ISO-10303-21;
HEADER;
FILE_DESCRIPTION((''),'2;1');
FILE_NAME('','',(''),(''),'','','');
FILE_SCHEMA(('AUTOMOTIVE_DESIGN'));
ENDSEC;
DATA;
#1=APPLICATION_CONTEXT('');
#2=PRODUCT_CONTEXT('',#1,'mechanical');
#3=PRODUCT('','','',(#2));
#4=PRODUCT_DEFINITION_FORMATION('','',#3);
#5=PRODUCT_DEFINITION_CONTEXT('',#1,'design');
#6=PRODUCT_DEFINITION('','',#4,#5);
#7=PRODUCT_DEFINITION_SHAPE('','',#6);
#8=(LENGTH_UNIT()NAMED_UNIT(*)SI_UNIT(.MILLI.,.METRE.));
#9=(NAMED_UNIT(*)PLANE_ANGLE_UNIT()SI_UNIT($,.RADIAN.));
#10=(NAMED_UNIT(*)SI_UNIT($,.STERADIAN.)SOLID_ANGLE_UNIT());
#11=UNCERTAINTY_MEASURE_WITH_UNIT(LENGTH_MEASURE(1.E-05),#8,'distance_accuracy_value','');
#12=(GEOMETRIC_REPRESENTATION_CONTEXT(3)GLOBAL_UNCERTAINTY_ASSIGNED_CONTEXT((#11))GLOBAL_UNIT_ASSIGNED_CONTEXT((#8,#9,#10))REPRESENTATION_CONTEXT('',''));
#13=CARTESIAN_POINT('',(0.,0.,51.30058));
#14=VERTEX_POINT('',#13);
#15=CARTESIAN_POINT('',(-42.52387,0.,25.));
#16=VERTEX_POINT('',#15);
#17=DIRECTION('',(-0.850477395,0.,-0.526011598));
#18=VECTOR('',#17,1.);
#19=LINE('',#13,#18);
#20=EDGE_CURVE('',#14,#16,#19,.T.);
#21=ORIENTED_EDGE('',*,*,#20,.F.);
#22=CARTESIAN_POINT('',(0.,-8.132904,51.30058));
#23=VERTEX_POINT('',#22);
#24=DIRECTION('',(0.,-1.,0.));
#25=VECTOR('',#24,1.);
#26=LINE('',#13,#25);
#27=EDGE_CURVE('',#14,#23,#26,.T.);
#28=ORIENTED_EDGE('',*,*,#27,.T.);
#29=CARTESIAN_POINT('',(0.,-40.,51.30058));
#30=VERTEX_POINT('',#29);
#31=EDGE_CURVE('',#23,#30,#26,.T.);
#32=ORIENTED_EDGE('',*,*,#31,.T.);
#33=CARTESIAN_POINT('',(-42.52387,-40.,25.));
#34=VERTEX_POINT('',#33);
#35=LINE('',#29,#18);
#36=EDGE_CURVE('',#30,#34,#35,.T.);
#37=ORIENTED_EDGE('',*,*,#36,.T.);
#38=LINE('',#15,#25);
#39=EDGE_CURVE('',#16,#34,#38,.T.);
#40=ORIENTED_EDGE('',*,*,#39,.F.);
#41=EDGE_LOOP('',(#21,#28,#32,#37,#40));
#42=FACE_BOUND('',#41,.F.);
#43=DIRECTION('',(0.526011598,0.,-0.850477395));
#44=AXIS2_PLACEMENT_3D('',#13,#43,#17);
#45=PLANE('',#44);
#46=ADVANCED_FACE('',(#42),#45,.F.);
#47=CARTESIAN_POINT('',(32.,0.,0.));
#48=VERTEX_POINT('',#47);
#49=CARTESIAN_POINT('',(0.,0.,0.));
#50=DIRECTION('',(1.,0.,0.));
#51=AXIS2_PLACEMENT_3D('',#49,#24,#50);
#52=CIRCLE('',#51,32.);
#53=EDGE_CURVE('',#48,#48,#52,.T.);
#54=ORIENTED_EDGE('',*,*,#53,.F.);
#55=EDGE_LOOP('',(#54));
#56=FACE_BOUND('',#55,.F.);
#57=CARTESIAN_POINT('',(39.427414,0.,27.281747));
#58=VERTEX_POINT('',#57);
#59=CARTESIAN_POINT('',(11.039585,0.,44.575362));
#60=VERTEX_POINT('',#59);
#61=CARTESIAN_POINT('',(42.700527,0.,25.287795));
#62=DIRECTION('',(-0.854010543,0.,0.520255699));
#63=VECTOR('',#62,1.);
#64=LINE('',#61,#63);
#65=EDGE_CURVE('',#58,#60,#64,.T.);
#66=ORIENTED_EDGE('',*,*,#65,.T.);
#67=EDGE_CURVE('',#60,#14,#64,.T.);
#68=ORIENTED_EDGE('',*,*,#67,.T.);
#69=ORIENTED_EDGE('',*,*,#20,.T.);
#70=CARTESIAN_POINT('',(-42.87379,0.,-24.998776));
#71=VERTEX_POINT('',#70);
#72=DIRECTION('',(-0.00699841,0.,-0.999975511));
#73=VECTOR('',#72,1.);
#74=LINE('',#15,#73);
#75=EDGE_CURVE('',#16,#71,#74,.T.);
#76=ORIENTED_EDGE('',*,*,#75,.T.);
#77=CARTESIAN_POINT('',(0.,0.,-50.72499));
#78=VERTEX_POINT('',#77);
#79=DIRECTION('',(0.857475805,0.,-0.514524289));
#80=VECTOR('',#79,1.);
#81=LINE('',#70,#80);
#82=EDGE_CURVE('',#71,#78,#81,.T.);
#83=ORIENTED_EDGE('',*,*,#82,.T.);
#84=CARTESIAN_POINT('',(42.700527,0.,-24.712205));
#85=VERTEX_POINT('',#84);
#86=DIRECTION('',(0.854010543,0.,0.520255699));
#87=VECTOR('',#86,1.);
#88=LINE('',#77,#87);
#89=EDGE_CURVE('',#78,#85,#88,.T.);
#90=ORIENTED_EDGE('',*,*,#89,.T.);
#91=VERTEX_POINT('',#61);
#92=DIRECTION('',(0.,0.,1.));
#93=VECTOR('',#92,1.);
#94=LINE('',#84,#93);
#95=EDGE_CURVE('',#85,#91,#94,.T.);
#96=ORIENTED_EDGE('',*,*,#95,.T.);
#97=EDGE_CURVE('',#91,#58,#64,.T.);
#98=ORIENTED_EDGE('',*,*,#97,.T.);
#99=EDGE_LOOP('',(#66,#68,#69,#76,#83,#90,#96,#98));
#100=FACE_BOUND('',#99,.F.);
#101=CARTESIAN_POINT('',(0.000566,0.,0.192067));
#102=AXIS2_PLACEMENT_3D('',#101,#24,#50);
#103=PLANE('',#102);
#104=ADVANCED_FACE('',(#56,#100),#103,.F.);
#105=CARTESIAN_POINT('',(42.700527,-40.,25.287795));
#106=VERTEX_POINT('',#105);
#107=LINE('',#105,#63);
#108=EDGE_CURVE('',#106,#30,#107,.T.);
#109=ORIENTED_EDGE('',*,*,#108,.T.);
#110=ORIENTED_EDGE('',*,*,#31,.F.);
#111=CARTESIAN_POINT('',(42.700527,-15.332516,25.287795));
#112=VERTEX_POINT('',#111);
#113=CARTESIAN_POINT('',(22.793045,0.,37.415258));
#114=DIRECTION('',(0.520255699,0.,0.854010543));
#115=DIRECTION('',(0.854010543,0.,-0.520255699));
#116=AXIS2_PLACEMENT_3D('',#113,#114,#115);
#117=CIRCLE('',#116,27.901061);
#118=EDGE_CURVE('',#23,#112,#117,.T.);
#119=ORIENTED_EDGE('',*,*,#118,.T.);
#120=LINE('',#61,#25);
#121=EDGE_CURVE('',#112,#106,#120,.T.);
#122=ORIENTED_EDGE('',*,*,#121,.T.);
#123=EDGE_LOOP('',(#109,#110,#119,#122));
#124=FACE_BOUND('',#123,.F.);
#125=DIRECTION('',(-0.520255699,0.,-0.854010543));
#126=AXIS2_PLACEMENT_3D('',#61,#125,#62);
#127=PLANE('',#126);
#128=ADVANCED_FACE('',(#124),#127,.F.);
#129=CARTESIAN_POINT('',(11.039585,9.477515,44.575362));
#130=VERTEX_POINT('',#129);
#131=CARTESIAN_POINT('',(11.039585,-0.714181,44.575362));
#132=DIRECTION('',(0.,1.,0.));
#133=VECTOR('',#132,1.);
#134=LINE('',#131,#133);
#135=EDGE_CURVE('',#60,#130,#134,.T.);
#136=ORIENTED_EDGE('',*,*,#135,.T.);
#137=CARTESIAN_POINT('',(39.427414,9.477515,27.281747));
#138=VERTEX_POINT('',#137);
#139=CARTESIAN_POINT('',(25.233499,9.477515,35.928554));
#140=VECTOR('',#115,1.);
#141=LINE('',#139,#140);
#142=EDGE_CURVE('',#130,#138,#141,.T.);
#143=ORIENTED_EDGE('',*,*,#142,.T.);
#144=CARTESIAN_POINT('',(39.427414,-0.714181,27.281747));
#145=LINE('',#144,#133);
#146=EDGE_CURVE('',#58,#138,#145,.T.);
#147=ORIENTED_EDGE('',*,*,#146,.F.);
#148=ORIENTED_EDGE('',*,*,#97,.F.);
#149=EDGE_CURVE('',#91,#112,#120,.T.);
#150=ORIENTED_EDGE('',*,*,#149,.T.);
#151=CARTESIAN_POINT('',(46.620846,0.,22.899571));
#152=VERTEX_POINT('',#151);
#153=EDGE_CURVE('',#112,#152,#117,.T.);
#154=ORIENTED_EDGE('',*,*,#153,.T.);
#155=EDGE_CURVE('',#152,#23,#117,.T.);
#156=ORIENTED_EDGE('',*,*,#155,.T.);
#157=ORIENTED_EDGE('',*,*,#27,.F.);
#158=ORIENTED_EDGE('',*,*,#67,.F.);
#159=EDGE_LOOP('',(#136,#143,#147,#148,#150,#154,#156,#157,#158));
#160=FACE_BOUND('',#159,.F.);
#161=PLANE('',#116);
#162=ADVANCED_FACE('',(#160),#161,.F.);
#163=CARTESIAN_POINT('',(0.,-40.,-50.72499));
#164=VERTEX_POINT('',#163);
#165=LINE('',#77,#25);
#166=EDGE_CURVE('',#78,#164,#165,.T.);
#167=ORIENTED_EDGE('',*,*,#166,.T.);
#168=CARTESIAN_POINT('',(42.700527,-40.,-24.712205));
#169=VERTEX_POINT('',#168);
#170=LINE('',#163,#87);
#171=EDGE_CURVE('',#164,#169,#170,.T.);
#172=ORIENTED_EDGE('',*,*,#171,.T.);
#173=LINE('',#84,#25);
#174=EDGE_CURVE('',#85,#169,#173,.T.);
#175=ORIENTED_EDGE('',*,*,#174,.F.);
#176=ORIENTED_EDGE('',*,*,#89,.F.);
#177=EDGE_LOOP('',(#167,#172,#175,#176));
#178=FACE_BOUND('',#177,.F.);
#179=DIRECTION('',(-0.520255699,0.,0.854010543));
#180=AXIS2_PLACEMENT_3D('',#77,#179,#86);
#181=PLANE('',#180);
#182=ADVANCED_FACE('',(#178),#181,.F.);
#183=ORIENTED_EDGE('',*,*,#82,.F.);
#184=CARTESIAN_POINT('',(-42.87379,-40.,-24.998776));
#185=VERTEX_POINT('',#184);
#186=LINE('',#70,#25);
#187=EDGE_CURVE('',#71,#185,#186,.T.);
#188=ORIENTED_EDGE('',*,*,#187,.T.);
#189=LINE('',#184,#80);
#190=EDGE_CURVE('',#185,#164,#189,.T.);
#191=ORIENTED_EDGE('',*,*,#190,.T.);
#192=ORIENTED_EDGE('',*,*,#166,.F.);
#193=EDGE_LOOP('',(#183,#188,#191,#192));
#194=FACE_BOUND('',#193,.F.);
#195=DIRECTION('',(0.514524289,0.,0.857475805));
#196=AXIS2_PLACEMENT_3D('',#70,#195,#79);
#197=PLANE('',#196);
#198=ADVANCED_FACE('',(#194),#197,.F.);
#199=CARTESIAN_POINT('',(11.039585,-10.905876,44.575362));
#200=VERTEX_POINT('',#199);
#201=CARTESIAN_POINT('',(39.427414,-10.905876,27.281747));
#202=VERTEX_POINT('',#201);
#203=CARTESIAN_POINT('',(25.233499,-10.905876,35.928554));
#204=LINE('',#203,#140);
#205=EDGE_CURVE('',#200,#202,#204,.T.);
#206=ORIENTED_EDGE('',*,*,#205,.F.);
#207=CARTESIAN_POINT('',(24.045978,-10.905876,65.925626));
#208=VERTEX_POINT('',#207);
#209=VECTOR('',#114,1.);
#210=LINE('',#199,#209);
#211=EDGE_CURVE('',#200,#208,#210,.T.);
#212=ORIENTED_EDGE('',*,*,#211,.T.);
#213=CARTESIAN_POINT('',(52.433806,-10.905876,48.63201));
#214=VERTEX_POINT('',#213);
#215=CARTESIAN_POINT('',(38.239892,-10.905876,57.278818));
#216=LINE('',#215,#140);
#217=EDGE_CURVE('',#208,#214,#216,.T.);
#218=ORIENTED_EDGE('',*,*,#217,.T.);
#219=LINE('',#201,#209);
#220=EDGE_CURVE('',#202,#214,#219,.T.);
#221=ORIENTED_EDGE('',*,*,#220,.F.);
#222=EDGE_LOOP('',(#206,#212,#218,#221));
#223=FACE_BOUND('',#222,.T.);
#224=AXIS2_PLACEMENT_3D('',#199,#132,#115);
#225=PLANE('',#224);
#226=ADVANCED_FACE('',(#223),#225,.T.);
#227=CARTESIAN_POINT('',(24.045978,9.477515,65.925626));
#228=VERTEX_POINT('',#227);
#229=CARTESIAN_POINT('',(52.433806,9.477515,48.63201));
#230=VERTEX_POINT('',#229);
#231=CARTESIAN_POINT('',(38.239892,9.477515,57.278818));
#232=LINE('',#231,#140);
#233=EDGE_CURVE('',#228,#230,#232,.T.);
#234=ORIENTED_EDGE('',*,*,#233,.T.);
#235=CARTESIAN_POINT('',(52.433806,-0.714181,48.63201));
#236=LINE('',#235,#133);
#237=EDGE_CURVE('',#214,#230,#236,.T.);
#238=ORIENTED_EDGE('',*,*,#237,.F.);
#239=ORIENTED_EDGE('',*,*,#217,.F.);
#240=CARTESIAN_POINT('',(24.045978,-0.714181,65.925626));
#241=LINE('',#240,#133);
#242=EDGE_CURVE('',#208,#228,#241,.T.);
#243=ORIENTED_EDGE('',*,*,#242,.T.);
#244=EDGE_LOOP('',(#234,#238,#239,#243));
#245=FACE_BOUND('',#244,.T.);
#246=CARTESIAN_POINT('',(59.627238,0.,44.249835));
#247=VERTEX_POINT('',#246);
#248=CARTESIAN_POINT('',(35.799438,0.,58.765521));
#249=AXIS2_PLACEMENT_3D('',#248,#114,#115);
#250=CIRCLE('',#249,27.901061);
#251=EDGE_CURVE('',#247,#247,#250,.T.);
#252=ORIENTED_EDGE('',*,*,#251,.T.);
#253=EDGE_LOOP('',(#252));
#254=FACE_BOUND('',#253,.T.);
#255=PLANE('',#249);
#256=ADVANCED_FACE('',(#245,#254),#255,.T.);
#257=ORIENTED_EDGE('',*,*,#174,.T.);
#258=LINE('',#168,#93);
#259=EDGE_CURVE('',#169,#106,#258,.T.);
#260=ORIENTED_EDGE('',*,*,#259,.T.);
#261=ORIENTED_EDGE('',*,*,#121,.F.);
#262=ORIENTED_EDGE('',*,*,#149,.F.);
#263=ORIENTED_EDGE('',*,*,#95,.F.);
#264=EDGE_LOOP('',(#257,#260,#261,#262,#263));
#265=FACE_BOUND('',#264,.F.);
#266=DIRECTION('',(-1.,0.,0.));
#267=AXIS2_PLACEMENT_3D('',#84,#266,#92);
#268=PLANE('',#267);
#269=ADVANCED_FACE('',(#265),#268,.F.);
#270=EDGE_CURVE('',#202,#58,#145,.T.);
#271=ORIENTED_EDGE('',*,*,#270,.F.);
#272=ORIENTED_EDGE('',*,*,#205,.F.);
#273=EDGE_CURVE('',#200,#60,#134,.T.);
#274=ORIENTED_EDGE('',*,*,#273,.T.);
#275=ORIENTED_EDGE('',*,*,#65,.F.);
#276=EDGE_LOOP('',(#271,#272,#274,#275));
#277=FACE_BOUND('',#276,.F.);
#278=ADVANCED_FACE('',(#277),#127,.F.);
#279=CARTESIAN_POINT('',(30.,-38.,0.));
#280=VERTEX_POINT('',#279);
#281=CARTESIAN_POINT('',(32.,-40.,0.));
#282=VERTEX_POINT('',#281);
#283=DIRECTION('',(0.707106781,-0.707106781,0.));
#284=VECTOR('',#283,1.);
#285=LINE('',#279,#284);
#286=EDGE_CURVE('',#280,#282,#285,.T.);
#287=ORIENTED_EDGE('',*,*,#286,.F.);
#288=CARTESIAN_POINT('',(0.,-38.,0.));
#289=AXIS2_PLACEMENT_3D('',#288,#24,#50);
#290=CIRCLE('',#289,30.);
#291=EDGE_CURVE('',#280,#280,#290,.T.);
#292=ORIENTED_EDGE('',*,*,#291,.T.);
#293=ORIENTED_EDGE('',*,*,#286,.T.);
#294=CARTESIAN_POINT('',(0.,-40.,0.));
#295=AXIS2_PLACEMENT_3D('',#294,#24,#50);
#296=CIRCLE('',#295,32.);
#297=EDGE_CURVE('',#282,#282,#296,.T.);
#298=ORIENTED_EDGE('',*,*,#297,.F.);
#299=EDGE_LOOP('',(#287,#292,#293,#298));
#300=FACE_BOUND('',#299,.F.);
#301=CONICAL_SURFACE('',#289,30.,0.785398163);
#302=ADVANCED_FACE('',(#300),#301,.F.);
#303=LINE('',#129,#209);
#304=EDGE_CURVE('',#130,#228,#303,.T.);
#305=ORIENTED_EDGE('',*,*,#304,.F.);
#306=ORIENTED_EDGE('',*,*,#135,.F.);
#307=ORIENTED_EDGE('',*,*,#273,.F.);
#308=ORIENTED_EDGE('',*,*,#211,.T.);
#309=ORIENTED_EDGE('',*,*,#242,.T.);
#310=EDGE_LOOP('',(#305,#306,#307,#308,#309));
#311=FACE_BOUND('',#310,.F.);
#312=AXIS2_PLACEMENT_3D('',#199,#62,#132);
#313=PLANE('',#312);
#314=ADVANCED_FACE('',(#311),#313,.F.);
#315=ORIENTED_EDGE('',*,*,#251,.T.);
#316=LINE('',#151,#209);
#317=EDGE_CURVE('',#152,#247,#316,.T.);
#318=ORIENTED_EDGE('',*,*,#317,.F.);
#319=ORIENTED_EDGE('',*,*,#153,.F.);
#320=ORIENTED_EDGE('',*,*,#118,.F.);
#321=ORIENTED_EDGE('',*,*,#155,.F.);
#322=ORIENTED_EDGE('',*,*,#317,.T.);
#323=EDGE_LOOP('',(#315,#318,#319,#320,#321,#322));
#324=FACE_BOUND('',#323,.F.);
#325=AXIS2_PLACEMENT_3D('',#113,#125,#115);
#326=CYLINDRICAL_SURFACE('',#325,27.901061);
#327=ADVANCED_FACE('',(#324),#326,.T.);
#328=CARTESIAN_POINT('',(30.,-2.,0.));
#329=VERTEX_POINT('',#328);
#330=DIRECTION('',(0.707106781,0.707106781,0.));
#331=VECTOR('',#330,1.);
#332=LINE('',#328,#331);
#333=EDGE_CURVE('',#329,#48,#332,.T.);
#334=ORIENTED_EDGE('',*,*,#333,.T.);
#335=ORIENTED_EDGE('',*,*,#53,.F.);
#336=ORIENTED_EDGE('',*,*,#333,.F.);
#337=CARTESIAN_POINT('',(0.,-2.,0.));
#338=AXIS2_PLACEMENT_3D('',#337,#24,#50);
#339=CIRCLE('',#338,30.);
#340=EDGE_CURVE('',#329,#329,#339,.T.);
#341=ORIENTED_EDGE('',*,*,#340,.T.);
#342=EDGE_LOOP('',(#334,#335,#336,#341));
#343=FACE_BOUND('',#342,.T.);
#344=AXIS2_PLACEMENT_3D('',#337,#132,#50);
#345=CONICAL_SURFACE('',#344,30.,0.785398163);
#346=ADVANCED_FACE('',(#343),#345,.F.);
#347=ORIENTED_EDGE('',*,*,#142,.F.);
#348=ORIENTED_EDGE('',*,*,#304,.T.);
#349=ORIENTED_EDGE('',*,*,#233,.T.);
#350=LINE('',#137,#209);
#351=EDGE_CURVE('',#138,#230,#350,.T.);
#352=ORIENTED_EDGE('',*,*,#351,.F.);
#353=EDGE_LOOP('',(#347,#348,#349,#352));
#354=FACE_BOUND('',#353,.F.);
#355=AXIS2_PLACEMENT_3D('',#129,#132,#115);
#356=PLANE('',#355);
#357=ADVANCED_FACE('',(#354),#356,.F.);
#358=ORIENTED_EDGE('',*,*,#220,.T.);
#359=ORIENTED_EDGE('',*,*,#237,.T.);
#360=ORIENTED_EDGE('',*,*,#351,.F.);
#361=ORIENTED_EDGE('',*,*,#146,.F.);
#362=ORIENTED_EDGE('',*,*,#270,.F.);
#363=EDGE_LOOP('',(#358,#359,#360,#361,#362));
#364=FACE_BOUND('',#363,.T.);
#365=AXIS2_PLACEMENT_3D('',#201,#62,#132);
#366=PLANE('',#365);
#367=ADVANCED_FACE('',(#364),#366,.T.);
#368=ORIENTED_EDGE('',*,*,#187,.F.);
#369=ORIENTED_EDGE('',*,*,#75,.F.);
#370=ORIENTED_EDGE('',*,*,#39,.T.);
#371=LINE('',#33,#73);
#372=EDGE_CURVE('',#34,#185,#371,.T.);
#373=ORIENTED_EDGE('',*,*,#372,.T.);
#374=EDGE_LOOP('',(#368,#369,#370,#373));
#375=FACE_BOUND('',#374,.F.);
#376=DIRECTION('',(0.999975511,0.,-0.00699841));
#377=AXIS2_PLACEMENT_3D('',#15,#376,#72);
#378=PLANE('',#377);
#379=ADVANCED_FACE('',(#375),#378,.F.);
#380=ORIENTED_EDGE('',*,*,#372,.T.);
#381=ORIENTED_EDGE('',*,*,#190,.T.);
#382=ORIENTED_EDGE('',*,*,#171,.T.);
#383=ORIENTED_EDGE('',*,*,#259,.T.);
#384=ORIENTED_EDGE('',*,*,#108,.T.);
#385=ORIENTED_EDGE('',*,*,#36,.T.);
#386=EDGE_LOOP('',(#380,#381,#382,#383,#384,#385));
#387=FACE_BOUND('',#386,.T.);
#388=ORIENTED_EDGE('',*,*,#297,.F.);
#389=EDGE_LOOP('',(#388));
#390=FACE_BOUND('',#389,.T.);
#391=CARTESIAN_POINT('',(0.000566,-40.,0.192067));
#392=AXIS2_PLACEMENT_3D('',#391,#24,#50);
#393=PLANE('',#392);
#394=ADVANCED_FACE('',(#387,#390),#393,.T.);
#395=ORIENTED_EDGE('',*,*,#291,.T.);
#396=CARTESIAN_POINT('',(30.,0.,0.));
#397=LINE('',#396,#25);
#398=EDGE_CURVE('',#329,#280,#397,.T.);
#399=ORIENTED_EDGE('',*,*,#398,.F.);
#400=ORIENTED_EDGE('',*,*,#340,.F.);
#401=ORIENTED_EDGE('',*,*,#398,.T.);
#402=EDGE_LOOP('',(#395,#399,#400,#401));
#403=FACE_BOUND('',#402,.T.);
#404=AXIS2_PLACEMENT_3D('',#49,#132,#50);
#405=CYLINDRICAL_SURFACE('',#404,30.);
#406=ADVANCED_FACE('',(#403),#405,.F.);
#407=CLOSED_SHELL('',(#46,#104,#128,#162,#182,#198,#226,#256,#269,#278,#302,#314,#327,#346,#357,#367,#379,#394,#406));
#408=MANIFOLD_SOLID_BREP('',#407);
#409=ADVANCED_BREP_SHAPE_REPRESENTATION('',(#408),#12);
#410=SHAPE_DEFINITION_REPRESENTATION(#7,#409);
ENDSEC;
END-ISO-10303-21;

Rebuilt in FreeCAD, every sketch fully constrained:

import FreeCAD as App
import Part
import Sketcher

V = App.Vector
Q = App.Units.Quantity


def edges_at(feature, points):
    """Names of the edges that pass closest to the given points."""
    edges = feature.Shape.Edges
    near = lambda p: min(range(len(edges)), key=lambda i: edges[i].distToShape(Part.Vertex(*p))[0])
    return sorted({f"Edge{near(p) + 1}" for p in points})

doc = App.newDocument("Part")
body = doc.addObject("PartDesign::Body", "Body")

# Sketch on XZ plane
sketch1 = body.newObject("Sketcher::SketchObject", "Sketch")
sketch1.AttachmentSupport = (doc.getObject("XZ_Plane"), [""])
sketch1.MapMode = "FlatFace"
sketch1.addGeometry([
    Part.LineSegment(V(0, 51.30058, 0), V(-42.52387, 25, 0)),  # 0
    Part.LineSegment(V(-42.52387, 25, 0), V(-42.87379, -24.998776, 0)),  # 1
    Part.LineSegment(V(-42.87379, -24.998776, 0), V(0, -50.72499, 0)),  # 2
    Part.LineSegment(V(0, -50.72499, 0), V(42.700527, -24.712205, 0)),  # 3
    Part.LineSegment(V(42.700527, -24.712205, 0), V(42.700527, 25.287795, 0)),  # 4
    Part.LineSegment(V(42.700527, 25.287795, 0), V(0, 51.30058, 0)),  # 5
    Part.Circle(V(0, 0, 0), V(0, 0, 1), 30),  # 6
], False)
sketch1.addConstraint([
    Sketcher.Constraint("Coincident", 0, 2, 1, 1),
    Sketcher.Constraint("Coincident", 1, 2, 2, 1),
    Sketcher.Constraint("Coincident", 2, 2, 3, 1),
    Sketcher.Constraint("Coincident", 3, 2, 4, 1),
    Sketcher.Constraint("Coincident", 4, 2, 5, 1),
    Sketcher.Constraint("Coincident", 5, 2, 0, 1),
    Sketcher.Constraint("Vertical", 4),
    Sketcher.Constraint("Coincident", 6, 3, -1, 1),
    Sketcher.Constraint("PointOnObject", 2, 2, -2),
    Sketcher.Constraint("PointOnObject", 5, 2, -2),
    Sketcher.Constraint("Equal", 0, 1),
    Sketcher.Constraint("Equal", 1, 2),
    Sketcher.Constraint("Equal", 2, 3),
    Sketcher.Constraint("Equal", 3, 5),
    Sketcher.Constraint("Diameter", 6, Q("60 mm")),
    Sketcher.Constraint("DistanceY", 4, 1, 4, 2, Q("50 mm")),
    Sketcher.Constraint("Distance", 0, Q("50 mm")),
    Sketcher.Constraint("DistanceY", -1, 1, 0, 2, Q("25 mm")),
    Sketcher.Constraint("DistanceX", 0, 2, -1, 1, Q("42.52387 mm")),
    Sketcher.Constraint("DistanceX", 1, 2, -1, 1, Q("42.87379 mm")),
])
pad1 = body.newObject("PartDesign::Pad", "Pad")
pad1.Profile = sketch1
pad1.Length = 40
doc.recompute()

chamfer = body.newObject("PartDesign::Chamfer", "Chamfer")
chamfer.Base = (pad1, edges_at(pad1, [(-30, -40, 0), (-30, 0, 0)]))
chamfer.Size = 2

# Sketch on an angled plane
sketch2 = body.newObject("Sketcher::SketchObject", "Sketch001")
sketch2.Placement = App.Placement(V(22.793045, 0, 37.415258), App.Rotation(V(0.854010543, 0, -0.520255699), V(0, 1, 0), V(0.520255699, 0, 0.854010543), "ZXY"))
sketch2.addGeometry([
    Part.Circle(V(0, 0, 0), V(0, 0, 1), 27.901061),  # 0
    Part.LineSegment(V(19.477943, -10.905876, 0), V(-13.762664, -10.905876, 0)),  # 1
    Part.LineSegment(V(-13.762664, -10.905876, 0), V(-13.762664, 9.477515, 0)),  # 2
    Part.LineSegment(V(-13.762664, 9.477515, 0), V(19.477943, 9.477515, 0)),  # 3
    Part.LineSegment(V(19.477943, 9.477515, 0), V(19.477943, -10.905876, 0)),  # 4
], False)
sketch2.addConstraint([
    Sketcher.Constraint("Coincident", 1, 2, 2, 1),
    Sketcher.Constraint("Coincident", 2, 2, 3, 1),
    Sketcher.Constraint("Coincident", 3, 2, 4, 1),
    Sketcher.Constraint("Coincident", 4, 2, 1, 1),
    Sketcher.Constraint("Horizontal", 1),
    Sketcher.Constraint("Vertical", 2),
    Sketcher.Constraint("Horizontal", 3),
    Sketcher.Constraint("Vertical", 4),
    Sketcher.Constraint("Coincident", 0, 3, -1, 1),
    Sketcher.Constraint("Diameter", 0, Q("55.802123 mm")),
    Sketcher.Constraint("DistanceY", 2, 1, 2, 2, Q("20.383391 mm")),
    Sketcher.Constraint("DistanceX", 1, 2, 1, 1, Q("33.240607 mm")),
    Sketcher.Constraint("DistanceX", 1, 2, -1, 1, Q("13.762664 mm")),
    Sketcher.Constraint("DistanceY", 1, 2, -1, 1, Q("10.905876 mm")),
])
pad2 = body.newObject("PartDesign::Pad", "Pad001")
pad2.Profile = sketch2
pad2.Length = 25

doc.recompute()
